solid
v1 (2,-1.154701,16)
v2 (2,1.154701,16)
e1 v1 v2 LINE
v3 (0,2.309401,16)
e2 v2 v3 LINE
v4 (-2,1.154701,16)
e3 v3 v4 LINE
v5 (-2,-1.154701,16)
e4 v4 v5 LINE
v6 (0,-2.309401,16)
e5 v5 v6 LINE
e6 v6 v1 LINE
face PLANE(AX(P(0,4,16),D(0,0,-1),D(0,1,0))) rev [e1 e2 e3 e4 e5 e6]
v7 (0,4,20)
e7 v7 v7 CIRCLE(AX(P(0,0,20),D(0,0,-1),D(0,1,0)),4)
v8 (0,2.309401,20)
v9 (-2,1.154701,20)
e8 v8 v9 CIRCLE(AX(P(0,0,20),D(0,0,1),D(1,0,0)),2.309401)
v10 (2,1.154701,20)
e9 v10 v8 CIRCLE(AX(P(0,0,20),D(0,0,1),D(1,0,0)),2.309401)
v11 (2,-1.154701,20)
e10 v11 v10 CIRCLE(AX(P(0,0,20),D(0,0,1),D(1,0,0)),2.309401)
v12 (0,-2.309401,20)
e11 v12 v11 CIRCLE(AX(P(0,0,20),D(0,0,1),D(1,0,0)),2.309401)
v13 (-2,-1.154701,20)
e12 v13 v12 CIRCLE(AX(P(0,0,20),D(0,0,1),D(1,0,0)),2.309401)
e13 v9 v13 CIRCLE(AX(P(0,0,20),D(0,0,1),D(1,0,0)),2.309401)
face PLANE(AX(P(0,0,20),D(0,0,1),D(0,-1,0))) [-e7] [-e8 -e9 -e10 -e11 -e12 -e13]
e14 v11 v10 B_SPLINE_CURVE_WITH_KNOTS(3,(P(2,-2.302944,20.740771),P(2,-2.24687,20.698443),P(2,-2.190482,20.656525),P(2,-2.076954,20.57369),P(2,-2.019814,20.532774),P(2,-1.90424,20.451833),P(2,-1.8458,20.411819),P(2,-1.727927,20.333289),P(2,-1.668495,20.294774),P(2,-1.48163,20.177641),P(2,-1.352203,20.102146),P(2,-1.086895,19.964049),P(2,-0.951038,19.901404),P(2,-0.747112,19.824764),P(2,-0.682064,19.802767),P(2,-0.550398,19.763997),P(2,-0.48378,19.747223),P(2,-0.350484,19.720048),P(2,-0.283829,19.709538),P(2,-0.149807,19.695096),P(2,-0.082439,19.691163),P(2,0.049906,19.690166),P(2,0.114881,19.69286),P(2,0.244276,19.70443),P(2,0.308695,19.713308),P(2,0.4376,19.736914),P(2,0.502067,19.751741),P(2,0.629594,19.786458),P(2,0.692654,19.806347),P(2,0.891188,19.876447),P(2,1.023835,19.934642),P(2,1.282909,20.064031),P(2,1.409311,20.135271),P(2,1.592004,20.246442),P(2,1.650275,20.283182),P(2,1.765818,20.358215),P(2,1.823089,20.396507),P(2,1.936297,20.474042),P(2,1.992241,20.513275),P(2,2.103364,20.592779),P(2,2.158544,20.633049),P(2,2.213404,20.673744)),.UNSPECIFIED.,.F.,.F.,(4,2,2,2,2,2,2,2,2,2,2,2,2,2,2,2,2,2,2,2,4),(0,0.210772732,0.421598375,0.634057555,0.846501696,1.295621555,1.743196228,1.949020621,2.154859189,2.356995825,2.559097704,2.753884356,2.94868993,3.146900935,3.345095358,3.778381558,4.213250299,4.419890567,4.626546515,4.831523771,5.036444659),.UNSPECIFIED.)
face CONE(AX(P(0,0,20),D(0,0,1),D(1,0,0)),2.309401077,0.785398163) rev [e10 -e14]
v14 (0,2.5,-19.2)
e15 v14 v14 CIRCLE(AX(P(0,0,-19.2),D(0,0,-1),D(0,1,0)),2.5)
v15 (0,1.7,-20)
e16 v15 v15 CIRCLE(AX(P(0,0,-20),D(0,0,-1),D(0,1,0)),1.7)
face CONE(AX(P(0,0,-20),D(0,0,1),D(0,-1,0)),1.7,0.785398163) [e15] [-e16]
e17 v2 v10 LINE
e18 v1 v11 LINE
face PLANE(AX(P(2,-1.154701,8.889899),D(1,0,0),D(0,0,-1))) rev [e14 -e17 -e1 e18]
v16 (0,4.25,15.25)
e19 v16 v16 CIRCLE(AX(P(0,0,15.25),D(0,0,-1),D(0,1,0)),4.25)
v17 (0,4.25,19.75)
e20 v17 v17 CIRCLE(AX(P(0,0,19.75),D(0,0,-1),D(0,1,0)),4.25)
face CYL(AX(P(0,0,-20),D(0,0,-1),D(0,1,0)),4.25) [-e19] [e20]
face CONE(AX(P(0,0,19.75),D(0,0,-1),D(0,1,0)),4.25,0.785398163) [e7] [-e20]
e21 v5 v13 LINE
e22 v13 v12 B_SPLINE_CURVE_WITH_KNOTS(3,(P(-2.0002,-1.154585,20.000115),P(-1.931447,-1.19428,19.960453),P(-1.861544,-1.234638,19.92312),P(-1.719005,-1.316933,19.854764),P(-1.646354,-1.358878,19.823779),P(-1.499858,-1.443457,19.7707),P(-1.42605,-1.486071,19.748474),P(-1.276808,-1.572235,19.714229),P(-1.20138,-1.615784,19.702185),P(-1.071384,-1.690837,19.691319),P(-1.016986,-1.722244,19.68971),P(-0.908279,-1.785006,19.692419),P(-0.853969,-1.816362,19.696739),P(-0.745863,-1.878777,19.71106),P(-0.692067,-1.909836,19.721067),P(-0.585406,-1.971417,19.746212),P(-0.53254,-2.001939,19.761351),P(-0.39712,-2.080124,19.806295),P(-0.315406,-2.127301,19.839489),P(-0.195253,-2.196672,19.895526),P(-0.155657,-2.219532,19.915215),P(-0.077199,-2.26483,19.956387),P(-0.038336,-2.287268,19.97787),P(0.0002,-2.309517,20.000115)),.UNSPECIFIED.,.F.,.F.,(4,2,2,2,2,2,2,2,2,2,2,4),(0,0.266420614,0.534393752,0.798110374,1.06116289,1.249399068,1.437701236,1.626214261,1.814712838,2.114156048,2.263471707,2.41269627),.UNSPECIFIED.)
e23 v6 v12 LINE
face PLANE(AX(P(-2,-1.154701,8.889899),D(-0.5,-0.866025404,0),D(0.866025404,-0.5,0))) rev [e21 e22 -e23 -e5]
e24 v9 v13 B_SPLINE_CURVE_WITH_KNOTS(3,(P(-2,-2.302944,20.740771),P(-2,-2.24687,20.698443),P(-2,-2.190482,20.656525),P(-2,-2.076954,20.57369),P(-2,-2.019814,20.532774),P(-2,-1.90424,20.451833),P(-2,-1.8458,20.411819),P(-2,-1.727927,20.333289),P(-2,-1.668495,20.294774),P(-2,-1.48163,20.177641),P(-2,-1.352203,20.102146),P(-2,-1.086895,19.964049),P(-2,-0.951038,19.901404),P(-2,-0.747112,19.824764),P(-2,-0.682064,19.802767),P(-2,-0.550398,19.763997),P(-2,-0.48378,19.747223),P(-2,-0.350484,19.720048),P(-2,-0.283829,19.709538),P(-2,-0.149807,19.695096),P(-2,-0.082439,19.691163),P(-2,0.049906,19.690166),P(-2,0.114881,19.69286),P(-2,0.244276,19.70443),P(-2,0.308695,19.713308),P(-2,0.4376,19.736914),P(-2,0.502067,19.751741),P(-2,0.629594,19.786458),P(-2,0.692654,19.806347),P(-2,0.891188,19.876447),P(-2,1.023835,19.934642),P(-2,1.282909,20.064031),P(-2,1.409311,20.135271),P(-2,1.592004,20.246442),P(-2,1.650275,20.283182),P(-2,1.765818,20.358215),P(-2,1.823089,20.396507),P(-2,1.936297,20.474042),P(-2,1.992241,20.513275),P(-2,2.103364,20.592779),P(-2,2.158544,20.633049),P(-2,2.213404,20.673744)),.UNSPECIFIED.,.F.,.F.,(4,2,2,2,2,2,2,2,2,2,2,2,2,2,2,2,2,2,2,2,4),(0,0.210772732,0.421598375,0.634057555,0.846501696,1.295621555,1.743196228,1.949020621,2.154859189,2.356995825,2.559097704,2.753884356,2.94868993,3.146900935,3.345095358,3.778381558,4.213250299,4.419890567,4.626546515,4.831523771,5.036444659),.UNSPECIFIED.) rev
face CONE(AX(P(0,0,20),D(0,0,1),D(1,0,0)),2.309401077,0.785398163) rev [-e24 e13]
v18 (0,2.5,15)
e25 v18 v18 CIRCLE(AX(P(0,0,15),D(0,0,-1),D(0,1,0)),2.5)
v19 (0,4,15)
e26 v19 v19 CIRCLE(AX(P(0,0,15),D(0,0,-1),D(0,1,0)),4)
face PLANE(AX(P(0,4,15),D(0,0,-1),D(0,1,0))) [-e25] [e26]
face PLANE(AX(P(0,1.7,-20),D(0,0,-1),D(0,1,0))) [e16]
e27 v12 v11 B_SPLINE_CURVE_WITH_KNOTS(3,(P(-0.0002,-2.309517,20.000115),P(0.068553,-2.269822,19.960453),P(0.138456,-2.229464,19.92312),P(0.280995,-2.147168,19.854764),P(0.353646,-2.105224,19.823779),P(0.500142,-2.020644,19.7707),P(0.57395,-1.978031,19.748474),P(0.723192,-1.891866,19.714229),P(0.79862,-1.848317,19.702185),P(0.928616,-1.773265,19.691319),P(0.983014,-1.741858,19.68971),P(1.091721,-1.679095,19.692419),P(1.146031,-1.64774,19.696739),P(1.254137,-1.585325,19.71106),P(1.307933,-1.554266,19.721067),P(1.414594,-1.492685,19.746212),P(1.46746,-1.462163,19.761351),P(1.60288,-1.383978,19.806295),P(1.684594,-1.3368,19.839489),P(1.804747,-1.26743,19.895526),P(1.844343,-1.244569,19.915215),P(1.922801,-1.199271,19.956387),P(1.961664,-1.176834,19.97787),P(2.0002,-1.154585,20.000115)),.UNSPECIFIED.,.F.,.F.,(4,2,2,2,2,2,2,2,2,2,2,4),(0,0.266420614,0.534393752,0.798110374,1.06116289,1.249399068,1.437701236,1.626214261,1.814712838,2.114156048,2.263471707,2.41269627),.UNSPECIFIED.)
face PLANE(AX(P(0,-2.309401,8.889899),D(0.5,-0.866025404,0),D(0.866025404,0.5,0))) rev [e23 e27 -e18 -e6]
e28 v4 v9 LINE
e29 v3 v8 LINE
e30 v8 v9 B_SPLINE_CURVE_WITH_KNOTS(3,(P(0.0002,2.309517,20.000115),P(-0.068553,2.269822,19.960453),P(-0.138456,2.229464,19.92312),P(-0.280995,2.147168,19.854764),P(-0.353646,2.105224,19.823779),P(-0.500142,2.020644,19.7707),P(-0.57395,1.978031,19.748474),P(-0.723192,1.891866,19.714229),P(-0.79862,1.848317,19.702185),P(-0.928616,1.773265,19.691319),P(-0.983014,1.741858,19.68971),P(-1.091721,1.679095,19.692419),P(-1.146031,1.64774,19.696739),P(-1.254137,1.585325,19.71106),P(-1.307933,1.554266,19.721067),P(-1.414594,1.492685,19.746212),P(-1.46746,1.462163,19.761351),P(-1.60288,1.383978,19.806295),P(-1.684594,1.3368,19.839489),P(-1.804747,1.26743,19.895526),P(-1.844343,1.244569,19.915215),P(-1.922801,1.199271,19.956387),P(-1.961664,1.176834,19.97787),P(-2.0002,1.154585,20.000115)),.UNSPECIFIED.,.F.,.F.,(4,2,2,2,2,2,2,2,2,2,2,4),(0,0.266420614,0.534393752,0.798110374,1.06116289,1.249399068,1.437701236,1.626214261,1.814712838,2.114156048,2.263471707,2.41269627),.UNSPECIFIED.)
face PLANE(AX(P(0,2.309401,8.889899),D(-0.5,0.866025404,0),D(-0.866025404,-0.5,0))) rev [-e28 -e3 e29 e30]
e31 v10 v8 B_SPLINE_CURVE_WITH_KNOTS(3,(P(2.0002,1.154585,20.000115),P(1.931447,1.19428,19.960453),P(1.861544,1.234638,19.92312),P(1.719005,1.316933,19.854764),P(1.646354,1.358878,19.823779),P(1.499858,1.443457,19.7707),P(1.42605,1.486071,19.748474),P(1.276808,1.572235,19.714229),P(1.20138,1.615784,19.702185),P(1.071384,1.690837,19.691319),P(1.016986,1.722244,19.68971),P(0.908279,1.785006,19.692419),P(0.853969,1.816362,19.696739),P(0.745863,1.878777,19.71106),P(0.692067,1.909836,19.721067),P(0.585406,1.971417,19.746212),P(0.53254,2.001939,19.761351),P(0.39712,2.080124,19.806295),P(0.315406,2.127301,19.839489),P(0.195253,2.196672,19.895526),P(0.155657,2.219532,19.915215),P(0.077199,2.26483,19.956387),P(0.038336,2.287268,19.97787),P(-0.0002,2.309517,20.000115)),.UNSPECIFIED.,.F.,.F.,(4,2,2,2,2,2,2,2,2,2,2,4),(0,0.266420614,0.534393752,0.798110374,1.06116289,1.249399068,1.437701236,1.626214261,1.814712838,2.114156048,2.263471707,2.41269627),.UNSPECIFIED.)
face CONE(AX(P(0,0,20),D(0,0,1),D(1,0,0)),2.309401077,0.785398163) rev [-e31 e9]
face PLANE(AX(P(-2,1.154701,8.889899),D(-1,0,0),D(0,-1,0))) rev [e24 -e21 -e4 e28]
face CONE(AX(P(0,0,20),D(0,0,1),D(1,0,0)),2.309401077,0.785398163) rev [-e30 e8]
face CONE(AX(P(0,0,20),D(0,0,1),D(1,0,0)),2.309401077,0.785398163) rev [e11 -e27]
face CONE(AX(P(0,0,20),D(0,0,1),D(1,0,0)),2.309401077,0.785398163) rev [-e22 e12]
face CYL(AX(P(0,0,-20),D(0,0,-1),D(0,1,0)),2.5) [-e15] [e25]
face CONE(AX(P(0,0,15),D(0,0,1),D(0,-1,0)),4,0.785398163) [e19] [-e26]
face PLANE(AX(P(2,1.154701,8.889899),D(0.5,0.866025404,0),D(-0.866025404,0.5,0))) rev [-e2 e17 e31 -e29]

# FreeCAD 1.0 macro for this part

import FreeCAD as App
import Part
import Sketcher
from FreeCAD import Vector
Q = App.Units.Quantity

doc = App.newDocument("Part")
params = doc.addObject("Spreadsheet::Sheet", "Params")
for row, (alias, value) in enumerate([
    ("sketch1_width", "4 mm"),
    ("sketch1_height", "40 mm"),
    ("sketch1_width2", "1.7 mm"),
    ("sketch1_width3", "1.5 mm"),
    ("sketch1_height2", "34.2 mm"),
    ("revolution_angle", "360 deg"),
    ("pocket1_length", "4 mm"),
    ("groove_angle", "360 deg"),
], start=1):
    params.set(f"A{row}", alias)
    params.set(f"B{row}", "=" + value)
    params.setAlias(f"B{row}", alias)

body = doc.addObject("PartDesign::Body", "Body")

# Sketch on YZ plane
sketch1 = body.newObject("Sketcher::SketchObject", "Sketch")
sketch1.AttachmentSupport = (doc.getObject("YZ_Plane"), [""])
sketch1.MapMode = "FlatFace"
sketch1.addGeometry([
    Part.LineSegment(Vector(4, 20, 0), Vector(0, 20, 0)),  # 0
    Part.LineSegment(Vector(0, 20, 0), Vector(0, -20, 0)),  # 1
    Part.LineSegment(Vector(0, -20, 0), Vector(1.7, -20, 0)),  # 2
    Part.LineSegment(Vector(1.7, -20, 0), Vector(2.5, -19.2, 0)),  # 3
    Part.LineSegment(Vector(2.5, -19.2, 0), Vector(2.5, 15, 0)),  # 4
    Part.LineSegment(Vector(2.5, 15, 0), Vector(4, 15, 0)),  # 5
    Part.LineSegment(Vector(4, 15, 0), Vector(4.25, 15.25, 0)),  # 6
    Part.LineSegment(Vector(4.25, 15.25, 0), Vector(4.25, 19.75, 0)),  # 7
    Part.LineSegment(Vector(4.25, 19.75, 0), Vector(4, 20, 0)),  # 8
], False)
sketch1.addConstraint([
    Sketcher.Constraint("Coincident", 0, 2, 1, 1),
    Sketcher.Constraint("Coincident", 1, 2, 2, 1),
    Sketcher.Constraint("Coincident", 2, 2, 3, 1),
    Sketcher.Constraint("Coincident", 3, 2, 4, 1),
    Sketcher.Constraint("Coincident", 4, 2, 5, 1),
    Sketcher.Constraint("Coincident", 5, 2, 6, 1),
    Sketcher.Constraint("Coincident", 6, 2, 7, 1),
    Sketcher.Constraint("Coincident", 7, 2, 8, 1),
    Sketcher.Constraint("Coincident", 8, 2, 0, 1),
    Sketcher.Constraint("Horizontal", 0),
    Sketcher.Constraint("Vertical", 1),
    Sketcher.Constraint("Horizontal", 2),
    Sketcher.Constraint("Vertical", 4),
    Sketcher.Constraint("Horizontal", 5),
    Sketcher.Constraint("Vertical", 7),
    Sketcher.Constraint("Symmetric", 0, 2, 1, 2, -1, 1),
    Sketcher.Constraint("Parallel", 3, 6),
    Sketcher.Constraint("Perpendicular", 6, 8),
    Sketcher.Constraint("Vertical", 5, 2, 8, 2),
    Sketcher.Constraint("Equal", 6, 8),
    Sketcher.Constraint("DistanceX", 0, 2, 0, 1, Q("4 mm")),
    Sketcher.Constraint("DistanceY", 1, 2, 1, 1, Q("40 mm")),
    Sketcher.Constraint("DistanceX", 2, 1, 2, 2, Q("1.7 mm")),
    Sketcher.Constraint("DistanceX", 5, 1, 5, 2, Q("1.5 mm")),
    Sketcher.Constraint("DistanceY", 4, 1, 4, 2, Q("34.2 mm")),
    Sketcher.Constraint("DistanceY", 7, 1, 7, 2, Q("4.5 mm")),
])
sketch1.setExpression("Constraints[20]", "Params.sketch1_width")
sketch1.setExpression("Constraints[21]", "Params.sketch1_height")
sketch1.setExpression("Constraints[22]", "Params.sketch1_width2")
sketch1.setExpression("Constraints[23]", "Params.sketch1_width3")
sketch1.setExpression("Constraints[24]", "Params.sketch1_height2")
revolution = body.newObject("PartDesign::Revolution", "Revolution")
revolution.Profile = sketch1
revolution.ReferenceAxis = (sketch1, ["V_Axis"])
revolution.setExpression("Angle", "Params.revolution_angle")

# Sketch on XY plane
sketch2 = body.newObject("Sketcher::SketchObject", "Sketch001")
sketch2.AttachmentSupport = (doc.getObject("XY_Plane"), [""])
sketch2.MapMode = "FlatFace"
sketch2.AttachmentOffset = App.Placement(Vector(0, 0, 20), App.Rotation())
sketch2.addGeometry([
    Part.LineSegment(Vector(2, -1.2, 0), Vector(2, 1.2, 0)),  # 0
    Part.LineSegment(Vector(2, 1.2, 0), Vector(0, 2.3, 0)),  # 1
    Part.LineSegment(Vector(0, 2.3, 0), Vector(-2, 1.2, 0)),  # 2
    Part.LineSegment(Vector(-2, 1.2, 0), Vector(-2, -1.2, 0)),  # 3
    Part.LineSegment(Vector(-2, -1.2, 0), Vector(0, -2.3, 0)),  # 4
    Part.LineSegment(Vector(0, -2.3, 0), Vector(2, -1.2, 0)),  # 5
], False)
sketch2.addConstraint([
    Sketcher.Constraint("Coincident", 0, 2, 1, 1),
    Sketcher.Constraint("Coincident", 1, 2, 2, 1),
    Sketcher.Constraint("Coincident", 2, 2, 3, 1),
    Sketcher.Constraint("Coincident", 3, 2, 4, 1),
    Sketcher.Constraint("Coincident", 4, 2, 5, 1),
    Sketcher.Constraint("Coincident", 5, 2, 0, 1),
    Sketcher.Constraint("Vertical", 0),
    Sketcher.Constraint("Vertical", 3),
    Sketcher.Constraint("Symmetric", 0, 2, 3, 2, -1, 1),
    Sketcher.Constraint("Symmetric", 1, 2, 4, 2, -1, 1),
    Sketcher.Constraint("PointOnObject", 1, 2, -2),
    Sketcher.Constraint("Parallel", 2, 5),
    Sketcher.Constraint("Horizontal", 0, 2, 2, 2),
    Sketcher.Constraint("Angle", 1, Q("150 deg")),
    Sketcher.Constraint("DistanceX", -1, 1, 0, 2, Q("2 mm")),
    Sketcher.Constraint("DistanceY", 0, 1, 0, 2, Q("2.309401 mm")),
])
pocket1 = body.newObject("PartDesign::Pocket", "Pocket")
pocket1.Profile = sketch2
pocket1.setExpression("Length", "Params.pocket1_length")

# Sketch on YZ plane
sketch3 = body.newObject("Sketcher::SketchObject", "Sketch002")
sketch3.AttachmentSupport = (doc.getObject("YZ_Plane"), [""])
sketch3.MapMode = "FlatFace"
sketch3.addGeometry([
    Part.LineSegment(Vector(0, 20, 0), Vector(-2.3, 20, 0)),
    Part.LineSegment(Vector(-2.3, 20, 0), Vector(0, 17.7, 0)),
    Part.LineSegment(Vector(0, 17.7, 0), Vector(0, 20, 0)),
], False)
sketch3.addConstraint([
    Sketcher.Constraint("Coincident", 0, 2, 1, 1),
    Sketcher.Constraint("Coincident", 1, 2, 2, 1),
    Sketcher.Constraint("Coincident", 2, 2, 0, 1),
    Sketcher.Constraint("Horizontal", 0),
    Sketcher.Constraint("Vertical", 2),
    Sketcher.Constraint("PointOnObject", 1, 2, -2),
    Sketcher.Constraint("Equal", 0, 2),
    Sketcher.Constraint("DistanceY", -1, 1, 0, 2, Q("20 mm")),
    Sketcher.Constraint("DistanceX", 0, 2, 0, 1, Q("2.309401 mm")),
])
groove = body.newObject("PartDesign::Groove", "Groove")
groove.Profile = sketch3
groove.ReferenceAxis = (sketch3, ["V_Axis"])
groove.setExpression("Angle", "Params.groove_angle")

doc.recompute()
